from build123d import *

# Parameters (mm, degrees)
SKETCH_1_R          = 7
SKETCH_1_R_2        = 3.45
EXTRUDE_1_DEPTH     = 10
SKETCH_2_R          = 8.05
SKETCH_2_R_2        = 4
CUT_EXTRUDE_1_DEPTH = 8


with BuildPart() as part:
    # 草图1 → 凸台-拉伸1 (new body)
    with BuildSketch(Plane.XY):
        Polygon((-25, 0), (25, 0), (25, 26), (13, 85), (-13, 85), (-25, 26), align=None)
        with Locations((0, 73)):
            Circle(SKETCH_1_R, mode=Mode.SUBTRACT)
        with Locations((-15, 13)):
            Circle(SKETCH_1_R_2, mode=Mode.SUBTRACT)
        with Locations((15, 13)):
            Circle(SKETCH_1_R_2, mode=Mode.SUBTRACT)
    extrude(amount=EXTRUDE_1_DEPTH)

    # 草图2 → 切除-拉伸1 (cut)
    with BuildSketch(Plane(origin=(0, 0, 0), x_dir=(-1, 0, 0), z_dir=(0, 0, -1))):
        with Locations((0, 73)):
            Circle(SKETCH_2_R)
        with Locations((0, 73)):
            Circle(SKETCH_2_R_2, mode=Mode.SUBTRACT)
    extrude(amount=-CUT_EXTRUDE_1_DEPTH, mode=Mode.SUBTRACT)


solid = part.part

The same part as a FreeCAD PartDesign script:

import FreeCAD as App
import Part
import Sketcher

V = App.Vector

doc = App.newDocument("Part")
params = doc.addObject("Spreadsheet::Sheet", "Params")
for row, (alias, value) in enumerate([
    ("sketch1_diameter", "14 mm"),
    ("sketch1_diameter2", "6.9 mm"),
    ("sketch1_width", "50 mm"),
    ("sketch1_width2", "26 mm"),
    ("pad1_length", "10 mm"),
    ("sketch2_diameter", "8 mm"),
    ("sketch2_diameter2", "16.1 mm"),
    ("pocket1_length", "8 mm"),
], start=1):
    params.set(f"A{row}", alias)
    params.set(f"B{row}", "=" + value)
    params.setAlias(f"B{row}", alias)

body = doc.addObject("PartDesign::Body", "Body")

sketch1 = body.newObject("Sketcher::SketchObject", "Sketch")
sketch1.AttachmentSupport = (doc.getObject("XY_Plane"), [""])
sketch1.MapMode = "FlatFace"
sketch1.addGeometry([
    Part.LineSegment(V(-25, 0, 0), V(25, 0, 0)),
    Part.LineSegment(V(25, 0, 0), V(25, 26, 0)),
    Part.LineSegment(V(25, 26, 0), V(13, 85, 0)),
    Part.LineSegment(V(13, 85, 0), V(-13, 85, 0)),
    Part.LineSegment(V(-13, 85, 0), V(-25, 26, 0)),
    Part.LineSegment(V(-25, 26, 0), V(-25, 0, 0)),
    Part.Circle(V(-15, 13, 0), V(0, 0, 1), 3.45),
    Part.Circle(V(15, 13, 0), V(0, 0, 1), 3.45),
    Part.Circle(V(0, 73, 0), V(0, 0, 1), 7),
], False)
sketch1.addConstraint([
    Sketcher.Constraint("Coincident", 0, 2, 1, 1),
    Sketcher.Constraint("Coincident", 1, 2, 2, 1),
    Sketcher.Constraint("Coincident", 2, 2, 3, 1),
    Sketcher.Constraint("Coincident", 3, 2, 4, 1),
    Sketcher.Constraint("Coincident", 4, 2, 5, 1),
    Sketcher.Constraint("Coincident", 5, 2, 0, 1),
    Sketcher.Constraint("Horizontal", 0),
    Sketcher.Constraint("Vertical", 1),
    Sketcher.Constraint("Horizontal", 3),
    Sketcher.Constraint("Vertical", 5),
    Sketcher.Constraint("Equal", 6, 7),
    Sketcher.Constraint("Symmetric", 0, 2, 5, 2, -1, 1),
    Sketcher.Constraint("Symmetric", 6, 3, 7, 3, -2),
    Sketcher.Constraint("PointOnObject", 8, 3, -2),
    Sketcher.Constraint("Horizontal", 1, 2, 4, 2),
    Sketcher.Constraint("Equal", 3, 1),
    Sketcher.Constraint("Equal", 2, 4),
    Sketcher.Constraint("Diameter", 8, 14.0),
    Sketcher.Constraint("Diameter", 6, 6.9),
    Sketcher.Constraint("DistanceX", 0, 1, 0, 2, 50.0),
    Sketcher.Constraint("DistanceX", 3, 2, 3, 1, 26.0),
    Sketcher.Constraint("DistanceX", 6, 3, -1, 1, 15.0),
    Sketcher.Constraint("DistanceY", -1, 1, 6, 3, 13.0),
    Sketcher.Constraint("DistanceY", -1, 1, 8, 3, 73.0),
    Sketcher.Constraint("DistanceY", -1, 1, 2, 2, 85.0),
])
sketch1.setExpression("Constraints[17]", "Params.sketch1_diameter")
sketch1.setExpression("Constraints[18]", "Params.sketch1_diameter2")
sketch1.setExpression("Constraints[19]", "Params.sketch1_width")
sketch1.setExpression("Constraints[20]", "Params.sketch1_width2")
pad1 = body.newObject("PartDesign::Pad", "Pad")
pad1.Profile = sketch1
pad1.setExpression("Length", "Params.pad1_length")

sketch2 = body.newObject("Sketcher::SketchObject", "Sketch001")
sketch2.AttachmentSupport = (doc.getObject("XY_Plane"), [""])
sketch2.MapMode = "FlatFace"
sketch2.addGeometry([
    Part.Circle(V(0, 73, 0), V(0, 0, 1), 8.05),
    Part.Circle(V(0, 73, 0), V(0, 0, 1), 4),
], False)
sketch2.addConstraint([
    Sketcher.Constraint("Coincident", 1, 3, 0, 3),
    Sketcher.Constraint("PointOnObject", 0, 3, -2),
    Sketcher.Constraint("Diameter", 1, 8.0),
    Sketcher.Constraint("Diameter", 0, 16.1),
    Sketcher.Constraint("DistanceY", -1, 1, 0, 3, 73.0),
])
sketch2.setExpression("Constraints[2]", "Params.sketch2_diameter")
sketch2.setExpression("Constraints[3]", "Params.sketch2_diameter2")
pocket1 = body.newObject("PartDesign::Pocket", "Pocket")
pocket1.Profile = sketch2
pocket1.setExpression("Length", "Params.pocket1_length")
pocket1.Reversed = True

doc.recompute()
